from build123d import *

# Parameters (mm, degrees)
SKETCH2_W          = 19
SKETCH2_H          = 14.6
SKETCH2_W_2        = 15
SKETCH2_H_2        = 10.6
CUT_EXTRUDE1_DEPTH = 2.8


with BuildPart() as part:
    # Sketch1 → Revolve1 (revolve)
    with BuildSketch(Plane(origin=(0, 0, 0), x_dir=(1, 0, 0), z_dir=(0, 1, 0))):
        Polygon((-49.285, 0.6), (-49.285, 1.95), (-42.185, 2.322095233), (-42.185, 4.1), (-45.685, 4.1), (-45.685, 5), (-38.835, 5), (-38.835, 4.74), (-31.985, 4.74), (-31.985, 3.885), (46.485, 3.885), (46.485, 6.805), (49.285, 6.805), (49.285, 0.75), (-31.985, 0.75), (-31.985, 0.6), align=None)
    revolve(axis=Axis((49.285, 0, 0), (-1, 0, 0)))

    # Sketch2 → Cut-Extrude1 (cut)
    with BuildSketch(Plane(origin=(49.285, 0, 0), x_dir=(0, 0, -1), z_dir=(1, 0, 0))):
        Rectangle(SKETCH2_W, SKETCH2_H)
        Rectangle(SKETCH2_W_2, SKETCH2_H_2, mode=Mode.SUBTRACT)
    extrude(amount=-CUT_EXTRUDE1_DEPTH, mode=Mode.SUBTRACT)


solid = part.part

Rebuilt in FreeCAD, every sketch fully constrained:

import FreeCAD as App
import Part
import Sketcher
from FreeCAD import Vector
Q = App.Units.Quantity

doc = App.newDocument("Part")
body = doc.addObject("PartDesign::Body", "Body")

sketch1 = doc.addObject("Sketcher::SketchObject", "Sketch")
body.addObject(sketch1)
sketch1.AttachmentSupport = (doc.XZ_Plane, [""])
sketch1.MapMode = "FlatFace"
sketch1.addGeometry(Part.LineSegment(Vector(-49.28, -1.95, 0), Vector(-49.28, -0.6, 0)), False)
sketch1.addGeometry(Part.LineSegment(Vector(-49.28, -0.6, 0), Vector(-31.98, -0.6, 0)), False)
sketch1.addGeometry(Part.LineSegment(Vector(-31.98, -0.6, 0), Vector(-31.98, -0.75, 0)), False)
sketch1.addGeometry(Part.LineSegment(Vector(-31.98, -0.75, 0), Vector(49.28, -0.75, 0)), False)
sketch1.addGeometry(Part.LineSegment(Vector(49.28, -0.75, 0), Vector(49.28, -6.8, 0)), False)
sketch1.addGeometry(Part.LineSegment(Vector(49.28, -6.8, 0), Vector(46.48, -6.8, 0)), False)
sketch1.addGeometry(Part.LineSegment(Vector(46.48, -6.8, 0), Vector(46.48, -3.88, 0)), False)
sketch1.addGeometry(Part.LineSegment(Vector(46.48, -3.88, 0), Vector(-31.98, -3.88, 0)), False)
sketch1.addGeometry(Part.LineSegment(Vector(-31.98, -3.88, 0), Vector(-31.98, -4.74, 0)), False)
sketch1.addGeometry(Part.LineSegment(Vector(-31.98, -4.74, 0), Vector(-38.84, -4.74, 0)), False)
sketch1.addGeometry(Part.LineSegment(Vector(-38.84, -4.74, 0), Vector(-38.84, -5, 0)), False)
sketch1.addGeometry(Part.LineSegment(Vector(-38.84, -5, 0), Vector(-45.69, -5, 0)), False)
sketch1.addGeometry(Part.LineSegment(Vector(-45.69, -5, 0), Vector(-45.69, -4.1, 0)), False)
sketch1.addGeometry(Part.LineSegment(Vector(-45.69, -4.1, 0), Vector(-42.19, -4.1, 0)), False)
sketch1.addGeometry(Part.LineSegment(Vector(-42.19, -4.1, 0), Vector(-42.19, -2.32, 0)), False)
sketch1.addGeometry(Part.LineSegment(Vector(-42.19, -2.32, 0), Vector(-49.28, -1.95, 0)), False)
sketch1.addConstraint(Sketcher.Constraint("Coincident", 0, 2, 1, 1))
sketch1.addConstraint(Sketcher.Constraint("Coincident", 1, 2, 2, 1))
sketch1.addConstraint(Sketcher.Constraint("Coincident", 2, 2, 3, 1))
sketch1.addConstraint(Sketcher.Constraint("Coincident", 3, 2, 4, 1))
sketch1.addConstraint(Sketcher.Constraint("Coincident", 4, 2, 5, 1))
sketch1.addConstraint(Sketcher.Constraint("Coincident", 5, 2, 6, 1))
sketch1.addConstraint(Sketcher.Constraint("Coincident", 6, 2, 7, 1))
sketch1.addConstraint(Sketcher.Constraint("Coincident", 7, 2, 8, 1))
sketch1.addConstraint(Sketcher.Constraint("Coincident", 8, 2, 9, 1))
sketch1.addConstraint(Sketcher.Constraint("Coincident", 9, 2, 10, 1))
sketch1.addConstraint(Sketcher.Constraint("Coincident", 10, 2, 11, 1))
sketch1.addConstraint(Sketcher.Constraint("Coincident", 11, 2, 12, 1))
sketch1.addConstraint(Sketcher.Constraint("Coincident", 12, 2, 13, 1))
sketch1.addConstraint(Sketcher.Constraint("Coincident", 13, 2, 14, 1))
sketch1.addConstraint(Sketcher.Constraint("Coincident", 14, 2, 15, 1))
sketch1.addConstraint(Sketcher.Constraint("Coincident", 15, 2, 0, 1))
sketch1.addConstraint(Sketcher.Constraint("Vertical", 0))
sketch1.addConstraint(Sketcher.Constraint("Horizontal", 1))
sketch1.addConstraint(Sketcher.Constraint("Vertical", 2))
sketch1.addConstraint(Sketcher.Constraint("Horizontal", 3))
sketch1.addConstraint(Sketcher.Constraint("Vertical", 4))
sketch1.addConstraint(Sketcher.Constraint("Horizontal", 5))
sketch1.addConstraint(Sketcher.Constraint("Vertical", 6))
sketch1.addConstraint(Sketcher.Constraint("Horizontal", 7))
sketch1.addConstraint(Sketcher.Constraint("Vertical", 8))
sketch1.addConstraint(Sketcher.Constraint("Horizontal", 9))
sketch1.addConstraint(Sketcher.Constraint("Vertical", 10))
sketch1.addConstraint(Sketcher.Constraint("Horizontal", 11))
sketch1.addConstraint(Sketcher.Constraint("Vertical", 12))
sketch1.addConstraint(Sketcher.Constraint("Horizontal", 13))
sketch1.addConstraint(Sketcher.Constraint("Vertical", 14))
sketch1.addConstraint(Sketcher.Constraint("Vertical", 2, 2, 7, 2))
sketch1.addConstraint(Sketcher.Constraint("Equal", 9, 11))
sketch1.addConstraint(Sketcher.Constraint("Angle", 15, Q("177 deg")))
sketch1.addConstraint(Sketcher.Constraint("DistanceX", 1, 1, 1, 2, Q("17.3 mm")))
sketch1.addConstraint(Sketcher.Constraint("DistanceX", 5, 2, 5, 1, Q("2.8 mm")))
sketch1.addConstraint(Sketcher.Constraint("DistanceX", 13, 1, 13, 2, Q("3.5 mm")))
sketch1.addConstraint(Sketcher.Constraint("DistanceY", 12, 1, 12, 2, Q("0.9 mm")))
sketch1.addConstraint(Sketcher.Constraint("DistanceY", 10, 2, -1, 1, Q("5 mm")))
sketch1.addConstraint(Sketcher.Constraint("DistanceX", 3, 1, 3, 2, Q("81.27 mm")))
sketch1.addConstraint(Sketcher.Constraint("DistanceX", 9, 2, 9, 1, Q("6.85 mm")))
sketch1.addConstraint(Sketcher.Constraint("DistanceY", 0, 1, 0, 2, Q("1.35 mm")))
sketch1.addConstraint(Sketcher.Constraint("DistanceY", 2, 2, 2, 1, Q("0.15 mm")))
sketch1.addConstraint(Sketcher.Constraint("DistanceY", 6, 1, 6, 2, Q("2.92 mm")))
sketch1.addConstraint(Sketcher.Constraint("DistanceY", 10, 2, 10, 1, Q("0.26 mm")))
sketch1.addConstraint(Sketcher.Constraint("DistanceY", 0, 2, -1, 1, Q("0.6 mm")))
sketch1.addConstraint(Sketcher.Constraint("DistanceY", 4, 2, 4, 1, Q("6.055 mm")))
sketch1.addConstraint(Sketcher.Constraint("DistanceX", 0, 2, -1, 1, Q("49.285 mm")))
revolution = doc.addObject("PartDesign::Revolution", "Revolution")
body.addObject(revolution)
revolution.Profile = sketch1
revolution.ReferenceAxis = (sketch1, ["H_Axis"])
revolution.Angle = 360

sketch2 = doc.addObject("Sketcher::SketchObject", "Sketch001")
body.addObject(sketch2)
sketch2.AttachmentSupport = (doc.YZ_Plane, [""])
sketch2.MapMode = "FlatFace"
sketch2.AttachmentOffset = App.Placement(Vector(0, 0, 49.285), App.Rotation())
sketch2.addGeometry(Part.LineSegment(Vector(7, 10, 0), Vector(-7, 10, 0)), False)
sketch2.addGeometry(Part.LineSegment(Vector(-7, 10, 0), Vector(-7, -10, 0)), False)
sketch2.addGeometry(Part.LineSegment(Vector(-7, -10, 0), Vector(7, -10, 0)), False)
sketch2.addGeometry(Part.LineSegment(Vector(7, -10, 0), Vector(7, 10, 0)), False)
sketch2.addGeometry(Part.LineSegment(Vector(-5, -8, 0), Vector(-5, 8, 0)), False)
sketch2.addGeometry(Part.LineSegment(Vector(-5, 8, 0), Vector(5, 8, 0)), False)
sketch2.addGeometry(Part.LineSegment(Vector(5, 8, 0), Vector(5, -8, 0)), False)
sketch2.addGeometry(Part.LineSegment(Vector(5, -8, 0), Vector(-5, -8, 0)), False)
sketch2.addConstraint(Sketcher.Constraint("Coincident", 0, 2, 1, 1))
sketch2.addConstraint(Sketcher.Constraint("Coincident", 1, 2, 2, 1))
sketch2.addConstraint(Sketcher.Constraint("Coincident", 2, 2, 3, 1))
sketch2.addConstraint(Sketcher.Constraint("Coincident", 3, 2, 0, 1))
sketch2.addConstraint(Sketcher.Constraint("Coincident", 4, 2, 5, 1))
sketch2.addConstraint(Sketcher.Constraint("Coincident", 5, 2, 6, 1))
sketch2.addConstraint(Sketcher.Constraint("Coincident", 6, 2, 7, 1))
sketch2.addConstraint(Sketcher.Constraint("Coincident", 7, 2, 4, 1))
sketch2.addConstraint(Sketcher.Constraint("Horizontal", 0))
sketch2.addConstraint(Sketcher.Constraint("Vertical", 1))
sketch2.addConstraint(Sketcher.Constraint("Horizontal", 2))
sketch2.addConstraint(Sketcher.Constraint("Vertical", 3))
sketch2.addConstraint(Sketcher.Constraint("Vertical", 4))
sketch2.addConstraint(Sketcher.Constraint("Horizontal", 5))
sketch2.addConstraint(Sketcher.Constraint("Vertical", 6))
sketch2.addConstraint(Sketcher.Constraint("Horizontal", 7))
sketch2.addConstraint(Sketcher.Constraint("Symmetric", 0, 2, 2, 2, -1, 1))
sketch2.addConstraint(Sketcher.Constraint("Symmetric", 4, 2, 6, 2, -1, 1))
sketch2.addConstraint(Sketcher.Constraint("DistanceY", 1, 2, 1, 1, Q("19 mm")))
sketch2.addConstraint(Sketcher.Constraint("DistanceY", 4, 1, 4, 2, Q("15 mm")))
sketch2.addConstraint(Sketcher.Constraint("DistanceX", 0, 2, 0, 1, Q("14.6 mm")))
sketch2.addConstraint(Sketcher.Constraint("DistanceX", 5, 1, 5, 2, Q("10.6 mm")))
pocket1 = doc.addObject("PartDesign::Pocket", "Pocket")
body.addObject(pocket1)
pocket1.Profile = sketch2
pocket1.Length = 2.8

doc.recompute()
